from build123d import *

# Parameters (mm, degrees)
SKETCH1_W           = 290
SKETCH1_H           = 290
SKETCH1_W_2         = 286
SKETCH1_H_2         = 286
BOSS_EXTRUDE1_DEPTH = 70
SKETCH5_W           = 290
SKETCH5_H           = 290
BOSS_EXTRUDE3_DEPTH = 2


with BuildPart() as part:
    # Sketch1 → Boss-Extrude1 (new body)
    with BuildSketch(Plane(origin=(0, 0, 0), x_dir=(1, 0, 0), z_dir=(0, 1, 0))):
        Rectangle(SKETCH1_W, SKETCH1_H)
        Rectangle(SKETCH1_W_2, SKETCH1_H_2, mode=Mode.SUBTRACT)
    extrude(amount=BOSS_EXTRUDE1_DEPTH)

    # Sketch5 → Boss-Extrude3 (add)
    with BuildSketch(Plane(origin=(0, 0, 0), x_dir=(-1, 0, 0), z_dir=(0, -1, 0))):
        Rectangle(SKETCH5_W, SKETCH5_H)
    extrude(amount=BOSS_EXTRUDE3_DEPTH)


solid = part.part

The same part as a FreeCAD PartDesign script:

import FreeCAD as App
import Part
import Sketcher

doc = App.newDocument("Part")
params = doc.addObject("Spreadsheet::Sheet", "Params")
for row, (alias, value) in enumerate([
    ("sketch1_width", "290 mm"),
    ("sketch1_width2", "286 mm"),
    ("pad1_length", "70 mm"),
    ("sketch2_width", "290 mm"),
    ("pad2_length", "2 mm"),
], start=1):
    params.set(f"A{row}", alias)
    params.set(f"B{row}", "=" + value)
    params.setAlias(f"B{row}", alias)

body = doc.addObject("PartDesign::Body", "Body")

# Sketch on XZ plane
sketch1 = body.newObject("Sketcher::SketchObject", "Sketch")
sketch1.AttachmentSupport = (doc.getObject("XZ_Plane"), [""])
sketch1.MapMode = "FlatFace"
sketch1.addGeometry([
    Part.LineSegment(App.Vector(-145, -145, 0), App.Vector(-145, 145, 0)),  # 0
    Part.LineSegment(App.Vector(-145, 145, 0), App.Vector(145, 145, 0)),  # 1
    Part.LineSegment(App.Vector(145, 145, 0), App.Vector(145, -145, 0)),  # 2
    Part.LineSegment(App.Vector(145, -145, 0), App.Vector(-145, -145, 0)),  # 3
    Part.LineSegment(App.Vector(143, 143, 0), App.Vector(-143, 143, 0)),  # 4
    Part.LineSegment(App.Vector(-143, 143, 0), App.Vector(-143, -143, 0)),  # 5
    Part.LineSegment(App.Vector(-143, -143, 0), App.Vector(143, -143, 0)),  # 6
    Part.LineSegment(App.Vector(143, -143, 0), App.Vector(143, 143, 0)),  # 7
], False)
sketch1.addConstraint([
    Sketcher.Constraint("Coincident", 0, 2, 1, 1),
    Sketcher.Constraint("Coincident", 1, 2, 2, 1),
    Sketcher.Constraint("Coincident", 2, 2, 3, 1),
    Sketcher.Constraint("Coincident", 3, 2, 0, 1),
    Sketcher.Constraint("Coincident", 4, 2, 5, 1),
    Sketcher.Constraint("Coincident", 5, 2, 6, 1),
    Sketcher.Constraint("Coincident", 6, 2, 7, 1),
    Sketcher.Constraint("Coincident", 7, 2, 4, 1),
    Sketcher.Constraint("Vertical", 0),
    Sketcher.Constraint("Horizontal", 1),
    Sketcher.Constraint("Vertical", 2),
    Sketcher.Constraint("Horizontal", 3),
    Sketcher.Constraint("Horizontal", 4),
    Sketcher.Constraint("Vertical", 5),
    Sketcher.Constraint("Horizontal", 6),
    Sketcher.Constraint("Vertical", 7),
    Sketcher.Constraint("Symmetric", 0, 2, 2, 2, -1, 1),
    Sketcher.Constraint("Symmetric", 4, 2, 6, 2, -1, 1),
    Sketcher.Constraint("Equal", 3, 0),
    Sketcher.Constraint("Equal", 6, 5),
    Sketcher.Constraint("DistanceX", 1, 1, 1, 2, 290.0),
    Sketcher.Constraint("DistanceX", 4, 2, 4, 1, 286.0),
])
sketch1.setExpression("Constraints[20]", "Params.sketch1_width")
sketch1.setExpression("Constraints[21]", "Params.sketch1_width2")
pad1 = body.newObject("PartDesign::Pad", "Pad")
pad1.Profile = sketch1
pad1.setExpression("Length", "Params.pad1_length")
pad1.Reversed = True

# Sketch on XZ plane
sketch2 = body.newObject("Sketcher::SketchObject", "Sketch001")
sketch2.AttachmentSupport = (doc.getObject("XZ_Plane"), [""])
sketch2.MapMode = "FlatFace"
sketch2.addGeometry([
    Part.LineSegment(App.Vector(145, -145, 0), App.Vector(145, 145, 0)),
    Part.LineSegment(App.Vector(145, 145, 0), App.Vector(-145, 145, 0)),
    Part.LineSegment(App.Vector(-145, 145, 0), App.Vector(-145, -145, 0)),
    Part.LineSegment(App.Vector(-145, -145, 0), App.Vector(145, -145, 0)),
], False)
sketch2.addConstraint([
    Sketcher.Constraint("Coincident", 0, 2, 1, 1),
    Sketcher.Constraint("Coincident", 1, 2, 2, 1),
    Sketcher.Constraint("Coincident", 2, 2, 3, 1),
    Sketcher.Constraint("Coincident", 3, 2, 0, 1),
    Sketcher.Constraint("Vertical", 0),
    Sketcher.Constraint("Horizontal", 1),
    Sketcher.Constraint("Vertical", 2),
    Sketcher.Constraint("Horizontal", 3),
    Sketcher.Constraint("Symmetric", 0, 2, 2, 2, -1, 1),
    Sketcher.Constraint("Equal", 3, 0),
    Sketcher.Constraint("DistanceX", 1, 2, 1, 1, 290.0),
])
sketch2.setExpression("Constraints[10]", "Params.sketch2_width")
pad2 = body.newObject("PartDesign::Pad", "Pad001")
pad2.Profile = sketch2
pad2.setExpression("Length", "Params.pad2_length")

doc.recompute()
